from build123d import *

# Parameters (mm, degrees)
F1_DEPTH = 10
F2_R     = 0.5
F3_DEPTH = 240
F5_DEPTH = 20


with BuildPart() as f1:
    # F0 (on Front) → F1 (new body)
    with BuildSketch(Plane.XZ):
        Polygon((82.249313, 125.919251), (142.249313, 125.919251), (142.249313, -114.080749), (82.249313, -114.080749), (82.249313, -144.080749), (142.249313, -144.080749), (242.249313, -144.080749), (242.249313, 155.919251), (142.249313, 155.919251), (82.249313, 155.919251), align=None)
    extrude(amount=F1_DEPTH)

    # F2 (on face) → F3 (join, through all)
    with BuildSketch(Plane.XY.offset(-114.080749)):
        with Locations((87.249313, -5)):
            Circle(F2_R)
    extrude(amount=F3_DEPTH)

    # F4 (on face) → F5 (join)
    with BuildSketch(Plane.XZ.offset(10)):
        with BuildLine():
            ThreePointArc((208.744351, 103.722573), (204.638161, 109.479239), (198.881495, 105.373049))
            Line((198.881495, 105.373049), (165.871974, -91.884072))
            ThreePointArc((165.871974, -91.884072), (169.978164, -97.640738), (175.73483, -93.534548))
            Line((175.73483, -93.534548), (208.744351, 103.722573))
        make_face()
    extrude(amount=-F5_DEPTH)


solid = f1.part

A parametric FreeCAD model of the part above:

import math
import FreeCAD as App
import Part
import Sketcher

V = App.Vector
Q = App.Units.Quantity

doc = App.newDocument("Part")
params = doc.addObject("Spreadsheet::Sheet", "Params")
for row, (alias, value) in enumerate([
    ("sketch1_width", "60 mm"),
    ("sketch1_width2", "160 mm"),
    ("sketch1_height", "240 mm"),
    ("sketch1_height2", "30 mm"),
    ("pad1_length", "10 mm"),
    ("sketch2_diameter", "1 mm"),
    ("sketch3_radius", "5 mm"),
    ("sketch3_length", "200.000001 mm"),
    ("pad3_length", "20 mm"),
], start=1):
    params.set(f"A{row}", alias)
    params.set(f"B{row}", "=" + value)
    params.setAlias(f"B{row}", alias)

body = doc.addObject("PartDesign::Body", "Body")

# Sketch on XZ plane
sketch1 = body.newObject("Sketcher::SketchObject", "Sketch")
sketch1.AttachmentSupport = (doc.getObject("XZ_Plane"), [""])
sketch1.MapMode = "FlatFace"
sketch1.addGeometry(Part.LineSegment(V(82, 126, 0), V(142, 126, 0)), False)
sketch1.addGeometry(Part.LineSegment(V(142, 126, 0), V(142, -114, 0)), False)
sketch1.addGeometry(Part.LineSegment(V(142, -114, 0), V(82, -114, 0)), False)
sketch1.addGeometry(Part.LineSegment(V(82, -114, 0), V(82, -144, 0)), False)
sketch1.addGeometry(Part.LineSegment(V(82, -144, 0), V(242, -144, 0)), False)
sketch1.addGeometry(Part.LineSegment(V(242, -144, 0), V(242, 156, 0)), False)
sketch1.addGeometry(Part.LineSegment(V(242, 156, 0), V(82, 156, 0)), False)
sketch1.addGeometry(Part.LineSegment(V(82, 156, 0), V(82, 126, 0)), False)
sketch1.addConstraint(Sketcher.Constraint("Coincident", 0, 2, 1, 1))
sketch1.addConstraint(Sketcher.Constraint("Coincident", 1, 2, 2, 1))
sketch1.addConstraint(Sketcher.Constraint("Coincident", 2, 2, 3, 1))
sketch1.addConstraint(Sketcher.Constraint("Coincident", 3, 2, 4, 1))
sketch1.addConstraint(Sketcher.Constraint("Coincident", 4, 2, 5, 1))
sketch1.addConstraint(Sketcher.Constraint("Coincident", 5, 2, 6, 1))
sketch1.addConstraint(Sketcher.Constraint("Coincident", 6, 2, 7, 1))
sketch1.addConstraint(Sketcher.Constraint("Coincident", 7, 2, 0, 1))
sketch1.addConstraint(Sketcher.Constraint("Horizontal", 0))
sketch1.addConstraint(Sketcher.Constraint("Vertical", 1))
sketch1.addConstraint(Sketcher.Constraint("Horizontal", 2))
sketch1.addConstraint(Sketcher.Constraint("Vertical", 3))
sketch1.addConstraint(Sketcher.Constraint("Horizontal", 4))
sketch1.addConstraint(Sketcher.Constraint("Vertical", 5))
sketch1.addConstraint(Sketcher.Constraint("Horizontal", 6))
sketch1.addConstraint(Sketcher.Constraint("Vertical", 7))
sketch1.addConstraint(Sketcher.Constraint("Vertical", 3, 2, 6, 2))
sketch1.addConstraint(Sketcher.Constraint("Equal", 3, 7))
sketch1.addConstraint(Sketcher.Constraint("DistanceX", 0, 1, 0, 2, Q("60 mm")))
sketch1.addConstraint(Sketcher.Constraint("DistanceX", 4, 1, 4, 2, Q("160 mm")))
sketch1.addConstraint(Sketcher.Constraint("DistanceY", 1, 2, 1, 1, Q("240 mm")))
sketch1.addConstraint(Sketcher.Constraint("DistanceY", 3, 2, 3, 1, Q("30 mm")))
sketch1.addConstraint(Sketcher.Constraint("DistanceY", -1, 1, 0, 2, Q("125.919251 mm")))
sketch1.addConstraint(Sketcher.Constraint("DistanceX", -1, 1, 0, 2, Q("142.249313 mm")))
sketch1.setExpression("Constraints[18]", "Params.sketch1_width")
sketch1.setExpression("Constraints[19]", "Params.sketch1_width2")
sketch1.setExpression("Constraints[20]", "Params.sketch1_height")
sketch1.setExpression("Constraints[21]", "Params.sketch1_height2")
pad1 = body.newObject("PartDesign::Pad", "Pad")
pad1.Profile = sketch1
pad1.setExpression("Length", "Params.pad1_length")

# Sketch on XY plane
sketch2 = body.newObject("Sketcher::SketchObject", "Sketch001")
sketch2.AttachmentSupport = (doc.getObject("XY_Plane"), [""])
sketch2.MapMode = "FlatFace"
sketch2.AttachmentOffset = App.Placement(V(0, 0, -114.080749), App.Rotation())
sketch2.addGeometry(Part.Circle(V(87.2, -5, 0), V(0, 0, 1), 0.5), False)
sketch2.addConstraint(Sketcher.Constraint("Diameter", 0, Q("1 mm")))
sketch2.addConstraint(Sketcher.Constraint("DistanceY", 0, 3, -1, 1, Q("5 mm")))
sketch2.addConstraint(Sketcher.Constraint("DistanceX", -1, 1, 0, 3, Q("87.249313 mm")))
sketch2.setExpression("Constraints[0]", "Params.sketch2_diameter")
pad2 = body.newObject("PartDesign::Pad", "Pad001")
pad2.Profile = sketch2
pad2.Type = "UpToLast"

# Sketch on XZ plane
sketch3 = body.newObject("Sketcher::SketchObject", "Sketch002")
sketch3.AttachmentSupport = (doc.getObject("XZ_Plane"), [""])
sketch3.MapMode = "FlatFace"
sketch3.AttachmentOffset = App.Placement(V(0, 0, 10), App.Rotation())
sketch3.addGeometry(Part.ArcOfCircle(Part.Circle(V(203.8, 104.5, 0), V(0, 0, 1), 5), math.radians(-9), math.radians(171)), False)
sketch3.addGeometry(Part.LineSegment(V(198.9, 105.4, 0), V(165.9, -91.9, 0)), False)
sketch3.addGeometry(Part.ArcOfCircle(Part.Circle(V(170.8, -92.7, 0), V(0, 0, 1), 5), math.radians(171), math.radians(351)), False)
sketch3.addGeometry(Part.LineSegment(V(175.7, -93.5, 0), V(208.7, 103.7, 0)), False)
sketch3.addConstraint(Sketcher.Constraint("Tangent", 0, 2, 1, 1))
sketch3.addConstraint(Sketcher.Constraint("Tangent", 1, 2, 2, 1))
sketch3.addConstraint(Sketcher.Constraint("Tangent", 2, 2, 3, 1))
sketch3.addConstraint(Sketcher.Constraint("Tangent", 3, 2, 0, 1))
sketch3.addConstraint(Sketcher.Constraint("Equal", 0, 2))
sketch3.addConstraint(Sketcher.Constraint("Radius", 0, Q("5 mm")))
sketch3.addConstraint(Sketcher.Constraint("Distance", 1, Q("200.000001 mm")))
sketch3.addConstraint(Sketcher.Constraint("Angle", 1, Q("-99.5 deg")))
sketch3.addConstraint(Sketcher.Constraint("DistanceX", -1, 1, 2, 3, Q("170.803402 mm")))
sketch3.addConstraint(Sketcher.Constraint("DistanceY", -1, 1, 0, 3, Q("104.547811 mm")))
sketch3.setExpression("Constraints[5]", "Params.sketch3_radius")
sketch3.setExpression("Constraints[6]", "Params.sketch3_length")
pad3 = body.newObject("PartDesign::Pad", "Pad002")
pad3.Profile = sketch3
pad3.setExpression("Length", "Params.pad3_length")
pad3.Reversed = True

doc.recompute()
